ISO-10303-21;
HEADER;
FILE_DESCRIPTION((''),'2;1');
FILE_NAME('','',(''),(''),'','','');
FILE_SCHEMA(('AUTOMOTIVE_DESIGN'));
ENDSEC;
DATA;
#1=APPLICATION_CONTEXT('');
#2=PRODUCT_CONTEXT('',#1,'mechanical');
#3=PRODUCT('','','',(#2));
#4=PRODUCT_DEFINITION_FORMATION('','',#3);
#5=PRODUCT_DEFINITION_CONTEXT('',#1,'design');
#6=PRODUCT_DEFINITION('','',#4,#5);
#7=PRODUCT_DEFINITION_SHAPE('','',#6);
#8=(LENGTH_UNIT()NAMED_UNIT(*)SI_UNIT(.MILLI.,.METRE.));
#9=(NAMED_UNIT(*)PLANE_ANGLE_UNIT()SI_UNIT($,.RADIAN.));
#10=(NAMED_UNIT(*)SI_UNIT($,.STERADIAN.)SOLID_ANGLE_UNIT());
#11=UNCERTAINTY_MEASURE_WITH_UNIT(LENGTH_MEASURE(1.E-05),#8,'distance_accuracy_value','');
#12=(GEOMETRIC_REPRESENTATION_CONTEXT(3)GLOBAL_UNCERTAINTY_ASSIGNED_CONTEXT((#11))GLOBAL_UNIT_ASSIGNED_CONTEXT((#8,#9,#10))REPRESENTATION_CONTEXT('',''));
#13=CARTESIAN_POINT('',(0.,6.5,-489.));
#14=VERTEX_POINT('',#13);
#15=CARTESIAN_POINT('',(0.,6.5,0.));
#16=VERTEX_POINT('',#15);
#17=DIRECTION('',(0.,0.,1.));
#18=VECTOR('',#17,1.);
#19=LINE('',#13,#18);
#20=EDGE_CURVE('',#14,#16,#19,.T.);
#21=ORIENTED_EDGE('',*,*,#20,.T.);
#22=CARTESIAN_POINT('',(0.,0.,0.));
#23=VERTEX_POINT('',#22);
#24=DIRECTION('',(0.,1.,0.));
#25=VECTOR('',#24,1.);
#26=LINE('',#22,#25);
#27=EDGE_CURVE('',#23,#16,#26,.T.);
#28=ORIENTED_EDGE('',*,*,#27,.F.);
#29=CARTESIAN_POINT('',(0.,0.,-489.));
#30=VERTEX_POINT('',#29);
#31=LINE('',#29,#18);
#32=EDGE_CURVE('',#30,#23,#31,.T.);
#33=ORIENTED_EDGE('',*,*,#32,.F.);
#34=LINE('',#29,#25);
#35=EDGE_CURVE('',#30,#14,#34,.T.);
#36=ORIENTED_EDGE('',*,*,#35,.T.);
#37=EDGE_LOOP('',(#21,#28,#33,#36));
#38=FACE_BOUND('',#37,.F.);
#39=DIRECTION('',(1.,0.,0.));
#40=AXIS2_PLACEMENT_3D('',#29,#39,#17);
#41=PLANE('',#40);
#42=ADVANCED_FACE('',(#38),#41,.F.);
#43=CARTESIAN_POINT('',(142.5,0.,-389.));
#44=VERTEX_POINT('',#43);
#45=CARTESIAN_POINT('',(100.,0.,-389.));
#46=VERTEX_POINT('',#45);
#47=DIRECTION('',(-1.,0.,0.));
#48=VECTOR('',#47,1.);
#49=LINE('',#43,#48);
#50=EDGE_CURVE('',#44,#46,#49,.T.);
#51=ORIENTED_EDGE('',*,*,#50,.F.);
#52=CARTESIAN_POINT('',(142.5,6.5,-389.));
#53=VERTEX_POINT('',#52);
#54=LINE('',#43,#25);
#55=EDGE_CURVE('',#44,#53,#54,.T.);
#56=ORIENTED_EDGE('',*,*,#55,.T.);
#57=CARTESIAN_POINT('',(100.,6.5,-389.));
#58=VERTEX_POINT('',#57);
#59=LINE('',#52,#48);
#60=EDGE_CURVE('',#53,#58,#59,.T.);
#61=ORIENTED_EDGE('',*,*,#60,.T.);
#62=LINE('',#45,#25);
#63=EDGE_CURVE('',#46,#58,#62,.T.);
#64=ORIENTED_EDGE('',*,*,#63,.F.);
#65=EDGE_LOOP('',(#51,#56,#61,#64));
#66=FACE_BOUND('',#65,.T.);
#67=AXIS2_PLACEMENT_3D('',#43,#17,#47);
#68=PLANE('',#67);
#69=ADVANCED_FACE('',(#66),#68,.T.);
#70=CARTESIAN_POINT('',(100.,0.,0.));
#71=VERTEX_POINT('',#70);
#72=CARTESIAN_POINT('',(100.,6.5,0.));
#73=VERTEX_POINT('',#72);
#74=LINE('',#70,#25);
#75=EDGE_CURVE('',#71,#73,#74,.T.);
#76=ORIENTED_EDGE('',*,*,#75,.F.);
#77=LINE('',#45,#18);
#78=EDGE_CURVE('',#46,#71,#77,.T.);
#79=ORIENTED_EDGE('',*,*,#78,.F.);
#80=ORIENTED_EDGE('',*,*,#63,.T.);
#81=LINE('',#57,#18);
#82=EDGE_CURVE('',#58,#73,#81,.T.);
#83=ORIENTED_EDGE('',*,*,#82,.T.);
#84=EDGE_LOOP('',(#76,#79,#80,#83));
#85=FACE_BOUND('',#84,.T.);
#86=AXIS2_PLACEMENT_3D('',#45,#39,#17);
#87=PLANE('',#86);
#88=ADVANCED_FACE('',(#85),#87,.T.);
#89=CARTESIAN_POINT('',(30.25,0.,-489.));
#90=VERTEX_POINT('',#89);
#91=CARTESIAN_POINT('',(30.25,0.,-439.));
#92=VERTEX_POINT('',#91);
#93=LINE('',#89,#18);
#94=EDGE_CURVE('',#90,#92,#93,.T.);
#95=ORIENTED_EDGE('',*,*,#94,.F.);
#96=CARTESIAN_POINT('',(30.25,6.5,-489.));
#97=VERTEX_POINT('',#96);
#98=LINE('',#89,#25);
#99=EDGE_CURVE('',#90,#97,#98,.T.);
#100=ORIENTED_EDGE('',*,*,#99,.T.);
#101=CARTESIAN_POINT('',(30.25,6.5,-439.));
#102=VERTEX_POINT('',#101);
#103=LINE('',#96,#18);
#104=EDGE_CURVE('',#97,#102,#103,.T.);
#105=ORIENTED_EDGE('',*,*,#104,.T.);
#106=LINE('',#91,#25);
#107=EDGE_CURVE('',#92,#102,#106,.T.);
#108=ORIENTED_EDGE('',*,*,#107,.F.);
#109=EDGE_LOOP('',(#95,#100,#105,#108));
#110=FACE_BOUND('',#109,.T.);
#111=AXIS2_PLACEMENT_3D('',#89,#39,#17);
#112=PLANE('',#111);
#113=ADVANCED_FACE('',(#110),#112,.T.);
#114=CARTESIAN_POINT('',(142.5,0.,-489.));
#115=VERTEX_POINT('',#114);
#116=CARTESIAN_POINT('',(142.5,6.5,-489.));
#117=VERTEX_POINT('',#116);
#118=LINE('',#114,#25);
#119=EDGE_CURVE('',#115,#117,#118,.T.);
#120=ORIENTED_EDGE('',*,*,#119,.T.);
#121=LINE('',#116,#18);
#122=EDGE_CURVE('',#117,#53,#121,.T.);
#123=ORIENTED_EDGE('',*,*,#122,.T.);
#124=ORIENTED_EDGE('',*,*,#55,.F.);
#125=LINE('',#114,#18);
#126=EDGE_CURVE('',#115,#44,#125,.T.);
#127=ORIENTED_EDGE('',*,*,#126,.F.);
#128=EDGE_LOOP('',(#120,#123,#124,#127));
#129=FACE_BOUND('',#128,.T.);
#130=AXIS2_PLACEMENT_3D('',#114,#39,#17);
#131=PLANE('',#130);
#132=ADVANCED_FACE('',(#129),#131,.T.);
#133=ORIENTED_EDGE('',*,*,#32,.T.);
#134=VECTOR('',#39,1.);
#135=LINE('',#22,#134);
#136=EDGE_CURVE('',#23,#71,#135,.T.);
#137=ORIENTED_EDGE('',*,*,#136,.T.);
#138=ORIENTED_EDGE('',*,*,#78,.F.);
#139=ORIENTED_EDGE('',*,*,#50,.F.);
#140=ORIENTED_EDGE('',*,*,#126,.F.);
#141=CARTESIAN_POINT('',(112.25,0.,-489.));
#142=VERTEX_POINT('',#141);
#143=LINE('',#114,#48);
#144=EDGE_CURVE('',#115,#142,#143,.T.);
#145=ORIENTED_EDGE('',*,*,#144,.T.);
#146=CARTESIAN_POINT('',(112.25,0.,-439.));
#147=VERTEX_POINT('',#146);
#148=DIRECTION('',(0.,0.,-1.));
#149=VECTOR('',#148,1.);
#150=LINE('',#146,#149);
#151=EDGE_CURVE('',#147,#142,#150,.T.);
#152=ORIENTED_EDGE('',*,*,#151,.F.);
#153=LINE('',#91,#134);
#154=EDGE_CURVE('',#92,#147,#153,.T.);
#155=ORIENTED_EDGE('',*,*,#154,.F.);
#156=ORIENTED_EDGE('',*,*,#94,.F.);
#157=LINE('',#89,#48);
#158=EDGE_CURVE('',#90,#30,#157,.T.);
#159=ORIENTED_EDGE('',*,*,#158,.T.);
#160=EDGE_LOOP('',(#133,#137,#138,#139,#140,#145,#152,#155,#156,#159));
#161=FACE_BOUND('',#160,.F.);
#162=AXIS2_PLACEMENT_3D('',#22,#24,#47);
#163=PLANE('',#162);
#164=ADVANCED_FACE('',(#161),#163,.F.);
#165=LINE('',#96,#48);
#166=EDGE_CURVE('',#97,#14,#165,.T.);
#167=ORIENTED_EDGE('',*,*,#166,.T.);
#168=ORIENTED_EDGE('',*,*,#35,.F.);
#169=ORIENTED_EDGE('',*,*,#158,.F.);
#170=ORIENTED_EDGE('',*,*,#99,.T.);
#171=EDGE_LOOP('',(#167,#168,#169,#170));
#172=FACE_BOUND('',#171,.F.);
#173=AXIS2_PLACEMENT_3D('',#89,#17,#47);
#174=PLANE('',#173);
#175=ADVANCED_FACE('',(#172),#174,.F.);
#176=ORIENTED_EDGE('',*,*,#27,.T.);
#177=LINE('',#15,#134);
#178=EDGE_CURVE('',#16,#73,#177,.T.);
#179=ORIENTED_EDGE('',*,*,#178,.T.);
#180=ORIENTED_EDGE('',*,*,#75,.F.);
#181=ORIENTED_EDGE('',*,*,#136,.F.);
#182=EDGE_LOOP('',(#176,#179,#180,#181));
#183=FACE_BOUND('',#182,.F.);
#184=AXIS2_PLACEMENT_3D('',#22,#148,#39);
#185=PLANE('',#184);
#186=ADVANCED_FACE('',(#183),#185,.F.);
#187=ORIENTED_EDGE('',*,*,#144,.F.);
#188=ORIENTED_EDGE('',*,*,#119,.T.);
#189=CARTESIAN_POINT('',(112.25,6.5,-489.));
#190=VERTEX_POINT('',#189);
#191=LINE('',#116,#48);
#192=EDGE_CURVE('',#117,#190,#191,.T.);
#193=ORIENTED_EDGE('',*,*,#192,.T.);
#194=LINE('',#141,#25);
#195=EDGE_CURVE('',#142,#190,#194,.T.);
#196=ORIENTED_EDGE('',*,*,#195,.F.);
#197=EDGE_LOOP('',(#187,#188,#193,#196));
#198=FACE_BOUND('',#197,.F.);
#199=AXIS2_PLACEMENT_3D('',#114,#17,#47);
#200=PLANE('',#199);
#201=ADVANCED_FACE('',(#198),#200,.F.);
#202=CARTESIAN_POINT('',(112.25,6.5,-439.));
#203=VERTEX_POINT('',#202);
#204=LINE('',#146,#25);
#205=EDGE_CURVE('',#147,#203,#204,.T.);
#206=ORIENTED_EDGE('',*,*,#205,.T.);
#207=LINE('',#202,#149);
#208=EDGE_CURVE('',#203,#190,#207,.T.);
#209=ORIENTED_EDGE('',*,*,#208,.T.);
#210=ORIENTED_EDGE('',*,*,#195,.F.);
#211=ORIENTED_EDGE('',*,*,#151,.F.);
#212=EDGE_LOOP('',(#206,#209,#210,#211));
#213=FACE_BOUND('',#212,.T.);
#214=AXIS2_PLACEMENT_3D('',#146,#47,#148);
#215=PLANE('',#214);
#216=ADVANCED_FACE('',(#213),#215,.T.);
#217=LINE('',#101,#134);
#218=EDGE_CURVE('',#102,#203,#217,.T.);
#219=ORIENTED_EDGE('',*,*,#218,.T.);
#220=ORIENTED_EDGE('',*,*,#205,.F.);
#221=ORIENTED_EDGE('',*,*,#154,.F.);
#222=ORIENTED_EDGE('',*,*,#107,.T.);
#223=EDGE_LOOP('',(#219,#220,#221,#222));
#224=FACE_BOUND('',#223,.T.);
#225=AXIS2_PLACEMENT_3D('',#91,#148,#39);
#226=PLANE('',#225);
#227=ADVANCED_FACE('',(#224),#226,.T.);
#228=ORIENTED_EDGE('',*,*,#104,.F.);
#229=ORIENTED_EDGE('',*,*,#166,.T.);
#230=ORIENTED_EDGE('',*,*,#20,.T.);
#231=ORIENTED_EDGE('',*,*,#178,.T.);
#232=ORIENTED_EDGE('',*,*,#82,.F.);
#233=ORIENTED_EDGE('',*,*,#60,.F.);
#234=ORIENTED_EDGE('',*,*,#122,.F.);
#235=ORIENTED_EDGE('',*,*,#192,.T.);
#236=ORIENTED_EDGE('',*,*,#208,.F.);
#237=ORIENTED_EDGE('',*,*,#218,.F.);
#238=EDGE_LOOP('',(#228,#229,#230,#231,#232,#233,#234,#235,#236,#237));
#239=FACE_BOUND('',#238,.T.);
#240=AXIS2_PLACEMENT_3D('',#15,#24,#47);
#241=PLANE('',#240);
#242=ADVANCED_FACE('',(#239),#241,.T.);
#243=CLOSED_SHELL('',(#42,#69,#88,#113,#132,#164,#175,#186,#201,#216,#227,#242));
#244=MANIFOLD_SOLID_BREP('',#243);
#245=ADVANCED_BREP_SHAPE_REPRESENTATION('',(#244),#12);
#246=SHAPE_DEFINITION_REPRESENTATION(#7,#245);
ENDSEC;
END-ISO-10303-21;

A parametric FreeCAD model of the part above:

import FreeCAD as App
import Part
import Sketcher
Q = App.Units.Quantity


def add_polygon(sketch, points):
    """Adds a closed chain of lines whose ends are joined by coincident constraints."""
    first, n = sketch.GeometryCount, len(points)
    for a, b in zip(points, points[1:] + points[:1]):
        sketch.addGeometry(Part.LineSegment(App.Vector(*a, 0), App.Vector(*b, 0)), False)
    for i in range(n):
        sketch.addConstraint(Sketcher.Constraint("Coincident", first + i, 2, first + (i + 1) % n, 1))

doc = App.newDocument("Part")
params = doc.addObject("Spreadsheet::Sheet", "Params")
for row, (alias, value) in enumerate([
    ("sketch1_width", "100 mm"),
    ("sketch1_width2", "82 mm"),
    ("sketch1_height", "489 mm"),
    ("sketch1_height2", "50 mm"),
    ("sketch1_width3", "30.25 mm"),
    ("pad1_length", "6.5 mm"),
], start=1):
    params.set(f"A{row}", alias)
    params.set(f"B{row}", "=" + value)
    params.setAlias(f"B{row}", alias)

body = doc.addObject("PartDesign::Body", "Body")

sketch1 = body.newObject("Sketcher::SketchObject", "Sketch")
sketch1.AttachmentSupport = (doc.getObject("XZ_Plane"), [""])
sketch1.MapMode = "FlatFace"
add_polygon(sketch1, [(0, -489), (0, 0), (100, 0), (100, -389), (142, -389), (142, -489), (112, -489), (112, -439), (30, -439), (30, -489)])
sketch1.addConstraint(Sketcher.Constraint("Vertical", 0))
sketch1.addConstraint(Sketcher.Constraint("Horizontal", 1))
sketch1.addConstraint(Sketcher.Constraint("Vertical", 2))
sketch1.addConstraint(Sketcher.Constraint("Horizontal", 3))
sketch1.addConstraint(Sketcher.Constraint("Vertical", 4))
sketch1.addConstraint(Sketcher.Constraint("Horizontal", 5))
sketch1.addConstraint(Sketcher.Constraint("Vertical", 6))
sketch1.addConstraint(Sketcher.Constraint("Horizontal", 7))
sketch1.addConstraint(Sketcher.Constraint("Vertical", 8))
sketch1.addConstraint(Sketcher.Constraint("Horizontal", 9))
sketch1.addConstraint(Sketcher.Constraint("Coincident", 0, 2, -1, 1))
sketch1.addConstraint(Sketcher.Constraint("Horizontal", 5, 2, 8, 2))
sketch1.addConstraint(Sketcher.Constraint("Equal", 5, 9))
sketch1.addConstraint(Sketcher.Constraint("Equal", 1, 4))
sketch1.addConstraint(Sketcher.Constraint("DistanceX", 1, 1, 1, 2, Q("100 mm")))
sketch1.addConstraint(Sketcher.Constraint("DistanceX", 7, 2, 7, 1, Q("82 mm")))
sketch1.addConstraint(Sketcher.Constraint("DistanceY", 0, 1, 0, 2, Q("489 mm")))
sketch1.addConstraint(Sketcher.Constraint("DistanceY", 6, 1, 6, 2, Q("50 mm")))
sketch1.addConstraint(Sketcher.Constraint("DistanceX", 5, 2, 5, 1, Q("30.25 mm")))
sketch1.setExpression("Constraints[24]", "Params.sketch1_width")
sketch1.setExpression("Constraints[25]", "Params.sketch1_width2")
sketch1.setExpression("Constraints[26]", "Params.sketch1_height")
sketch1.setExpression("Constraints[27]", "Params.sketch1_height2")
sketch1.setExpression("Constraints[28]", "Params.sketch1_width3")
pad1 = body.newObject("PartDesign::Pad", "Pad")
pad1.Profile = sketch1
pad1.setExpression("Length", "Params.pad1_length")
pad1.Reversed = True

doc.recompute()
